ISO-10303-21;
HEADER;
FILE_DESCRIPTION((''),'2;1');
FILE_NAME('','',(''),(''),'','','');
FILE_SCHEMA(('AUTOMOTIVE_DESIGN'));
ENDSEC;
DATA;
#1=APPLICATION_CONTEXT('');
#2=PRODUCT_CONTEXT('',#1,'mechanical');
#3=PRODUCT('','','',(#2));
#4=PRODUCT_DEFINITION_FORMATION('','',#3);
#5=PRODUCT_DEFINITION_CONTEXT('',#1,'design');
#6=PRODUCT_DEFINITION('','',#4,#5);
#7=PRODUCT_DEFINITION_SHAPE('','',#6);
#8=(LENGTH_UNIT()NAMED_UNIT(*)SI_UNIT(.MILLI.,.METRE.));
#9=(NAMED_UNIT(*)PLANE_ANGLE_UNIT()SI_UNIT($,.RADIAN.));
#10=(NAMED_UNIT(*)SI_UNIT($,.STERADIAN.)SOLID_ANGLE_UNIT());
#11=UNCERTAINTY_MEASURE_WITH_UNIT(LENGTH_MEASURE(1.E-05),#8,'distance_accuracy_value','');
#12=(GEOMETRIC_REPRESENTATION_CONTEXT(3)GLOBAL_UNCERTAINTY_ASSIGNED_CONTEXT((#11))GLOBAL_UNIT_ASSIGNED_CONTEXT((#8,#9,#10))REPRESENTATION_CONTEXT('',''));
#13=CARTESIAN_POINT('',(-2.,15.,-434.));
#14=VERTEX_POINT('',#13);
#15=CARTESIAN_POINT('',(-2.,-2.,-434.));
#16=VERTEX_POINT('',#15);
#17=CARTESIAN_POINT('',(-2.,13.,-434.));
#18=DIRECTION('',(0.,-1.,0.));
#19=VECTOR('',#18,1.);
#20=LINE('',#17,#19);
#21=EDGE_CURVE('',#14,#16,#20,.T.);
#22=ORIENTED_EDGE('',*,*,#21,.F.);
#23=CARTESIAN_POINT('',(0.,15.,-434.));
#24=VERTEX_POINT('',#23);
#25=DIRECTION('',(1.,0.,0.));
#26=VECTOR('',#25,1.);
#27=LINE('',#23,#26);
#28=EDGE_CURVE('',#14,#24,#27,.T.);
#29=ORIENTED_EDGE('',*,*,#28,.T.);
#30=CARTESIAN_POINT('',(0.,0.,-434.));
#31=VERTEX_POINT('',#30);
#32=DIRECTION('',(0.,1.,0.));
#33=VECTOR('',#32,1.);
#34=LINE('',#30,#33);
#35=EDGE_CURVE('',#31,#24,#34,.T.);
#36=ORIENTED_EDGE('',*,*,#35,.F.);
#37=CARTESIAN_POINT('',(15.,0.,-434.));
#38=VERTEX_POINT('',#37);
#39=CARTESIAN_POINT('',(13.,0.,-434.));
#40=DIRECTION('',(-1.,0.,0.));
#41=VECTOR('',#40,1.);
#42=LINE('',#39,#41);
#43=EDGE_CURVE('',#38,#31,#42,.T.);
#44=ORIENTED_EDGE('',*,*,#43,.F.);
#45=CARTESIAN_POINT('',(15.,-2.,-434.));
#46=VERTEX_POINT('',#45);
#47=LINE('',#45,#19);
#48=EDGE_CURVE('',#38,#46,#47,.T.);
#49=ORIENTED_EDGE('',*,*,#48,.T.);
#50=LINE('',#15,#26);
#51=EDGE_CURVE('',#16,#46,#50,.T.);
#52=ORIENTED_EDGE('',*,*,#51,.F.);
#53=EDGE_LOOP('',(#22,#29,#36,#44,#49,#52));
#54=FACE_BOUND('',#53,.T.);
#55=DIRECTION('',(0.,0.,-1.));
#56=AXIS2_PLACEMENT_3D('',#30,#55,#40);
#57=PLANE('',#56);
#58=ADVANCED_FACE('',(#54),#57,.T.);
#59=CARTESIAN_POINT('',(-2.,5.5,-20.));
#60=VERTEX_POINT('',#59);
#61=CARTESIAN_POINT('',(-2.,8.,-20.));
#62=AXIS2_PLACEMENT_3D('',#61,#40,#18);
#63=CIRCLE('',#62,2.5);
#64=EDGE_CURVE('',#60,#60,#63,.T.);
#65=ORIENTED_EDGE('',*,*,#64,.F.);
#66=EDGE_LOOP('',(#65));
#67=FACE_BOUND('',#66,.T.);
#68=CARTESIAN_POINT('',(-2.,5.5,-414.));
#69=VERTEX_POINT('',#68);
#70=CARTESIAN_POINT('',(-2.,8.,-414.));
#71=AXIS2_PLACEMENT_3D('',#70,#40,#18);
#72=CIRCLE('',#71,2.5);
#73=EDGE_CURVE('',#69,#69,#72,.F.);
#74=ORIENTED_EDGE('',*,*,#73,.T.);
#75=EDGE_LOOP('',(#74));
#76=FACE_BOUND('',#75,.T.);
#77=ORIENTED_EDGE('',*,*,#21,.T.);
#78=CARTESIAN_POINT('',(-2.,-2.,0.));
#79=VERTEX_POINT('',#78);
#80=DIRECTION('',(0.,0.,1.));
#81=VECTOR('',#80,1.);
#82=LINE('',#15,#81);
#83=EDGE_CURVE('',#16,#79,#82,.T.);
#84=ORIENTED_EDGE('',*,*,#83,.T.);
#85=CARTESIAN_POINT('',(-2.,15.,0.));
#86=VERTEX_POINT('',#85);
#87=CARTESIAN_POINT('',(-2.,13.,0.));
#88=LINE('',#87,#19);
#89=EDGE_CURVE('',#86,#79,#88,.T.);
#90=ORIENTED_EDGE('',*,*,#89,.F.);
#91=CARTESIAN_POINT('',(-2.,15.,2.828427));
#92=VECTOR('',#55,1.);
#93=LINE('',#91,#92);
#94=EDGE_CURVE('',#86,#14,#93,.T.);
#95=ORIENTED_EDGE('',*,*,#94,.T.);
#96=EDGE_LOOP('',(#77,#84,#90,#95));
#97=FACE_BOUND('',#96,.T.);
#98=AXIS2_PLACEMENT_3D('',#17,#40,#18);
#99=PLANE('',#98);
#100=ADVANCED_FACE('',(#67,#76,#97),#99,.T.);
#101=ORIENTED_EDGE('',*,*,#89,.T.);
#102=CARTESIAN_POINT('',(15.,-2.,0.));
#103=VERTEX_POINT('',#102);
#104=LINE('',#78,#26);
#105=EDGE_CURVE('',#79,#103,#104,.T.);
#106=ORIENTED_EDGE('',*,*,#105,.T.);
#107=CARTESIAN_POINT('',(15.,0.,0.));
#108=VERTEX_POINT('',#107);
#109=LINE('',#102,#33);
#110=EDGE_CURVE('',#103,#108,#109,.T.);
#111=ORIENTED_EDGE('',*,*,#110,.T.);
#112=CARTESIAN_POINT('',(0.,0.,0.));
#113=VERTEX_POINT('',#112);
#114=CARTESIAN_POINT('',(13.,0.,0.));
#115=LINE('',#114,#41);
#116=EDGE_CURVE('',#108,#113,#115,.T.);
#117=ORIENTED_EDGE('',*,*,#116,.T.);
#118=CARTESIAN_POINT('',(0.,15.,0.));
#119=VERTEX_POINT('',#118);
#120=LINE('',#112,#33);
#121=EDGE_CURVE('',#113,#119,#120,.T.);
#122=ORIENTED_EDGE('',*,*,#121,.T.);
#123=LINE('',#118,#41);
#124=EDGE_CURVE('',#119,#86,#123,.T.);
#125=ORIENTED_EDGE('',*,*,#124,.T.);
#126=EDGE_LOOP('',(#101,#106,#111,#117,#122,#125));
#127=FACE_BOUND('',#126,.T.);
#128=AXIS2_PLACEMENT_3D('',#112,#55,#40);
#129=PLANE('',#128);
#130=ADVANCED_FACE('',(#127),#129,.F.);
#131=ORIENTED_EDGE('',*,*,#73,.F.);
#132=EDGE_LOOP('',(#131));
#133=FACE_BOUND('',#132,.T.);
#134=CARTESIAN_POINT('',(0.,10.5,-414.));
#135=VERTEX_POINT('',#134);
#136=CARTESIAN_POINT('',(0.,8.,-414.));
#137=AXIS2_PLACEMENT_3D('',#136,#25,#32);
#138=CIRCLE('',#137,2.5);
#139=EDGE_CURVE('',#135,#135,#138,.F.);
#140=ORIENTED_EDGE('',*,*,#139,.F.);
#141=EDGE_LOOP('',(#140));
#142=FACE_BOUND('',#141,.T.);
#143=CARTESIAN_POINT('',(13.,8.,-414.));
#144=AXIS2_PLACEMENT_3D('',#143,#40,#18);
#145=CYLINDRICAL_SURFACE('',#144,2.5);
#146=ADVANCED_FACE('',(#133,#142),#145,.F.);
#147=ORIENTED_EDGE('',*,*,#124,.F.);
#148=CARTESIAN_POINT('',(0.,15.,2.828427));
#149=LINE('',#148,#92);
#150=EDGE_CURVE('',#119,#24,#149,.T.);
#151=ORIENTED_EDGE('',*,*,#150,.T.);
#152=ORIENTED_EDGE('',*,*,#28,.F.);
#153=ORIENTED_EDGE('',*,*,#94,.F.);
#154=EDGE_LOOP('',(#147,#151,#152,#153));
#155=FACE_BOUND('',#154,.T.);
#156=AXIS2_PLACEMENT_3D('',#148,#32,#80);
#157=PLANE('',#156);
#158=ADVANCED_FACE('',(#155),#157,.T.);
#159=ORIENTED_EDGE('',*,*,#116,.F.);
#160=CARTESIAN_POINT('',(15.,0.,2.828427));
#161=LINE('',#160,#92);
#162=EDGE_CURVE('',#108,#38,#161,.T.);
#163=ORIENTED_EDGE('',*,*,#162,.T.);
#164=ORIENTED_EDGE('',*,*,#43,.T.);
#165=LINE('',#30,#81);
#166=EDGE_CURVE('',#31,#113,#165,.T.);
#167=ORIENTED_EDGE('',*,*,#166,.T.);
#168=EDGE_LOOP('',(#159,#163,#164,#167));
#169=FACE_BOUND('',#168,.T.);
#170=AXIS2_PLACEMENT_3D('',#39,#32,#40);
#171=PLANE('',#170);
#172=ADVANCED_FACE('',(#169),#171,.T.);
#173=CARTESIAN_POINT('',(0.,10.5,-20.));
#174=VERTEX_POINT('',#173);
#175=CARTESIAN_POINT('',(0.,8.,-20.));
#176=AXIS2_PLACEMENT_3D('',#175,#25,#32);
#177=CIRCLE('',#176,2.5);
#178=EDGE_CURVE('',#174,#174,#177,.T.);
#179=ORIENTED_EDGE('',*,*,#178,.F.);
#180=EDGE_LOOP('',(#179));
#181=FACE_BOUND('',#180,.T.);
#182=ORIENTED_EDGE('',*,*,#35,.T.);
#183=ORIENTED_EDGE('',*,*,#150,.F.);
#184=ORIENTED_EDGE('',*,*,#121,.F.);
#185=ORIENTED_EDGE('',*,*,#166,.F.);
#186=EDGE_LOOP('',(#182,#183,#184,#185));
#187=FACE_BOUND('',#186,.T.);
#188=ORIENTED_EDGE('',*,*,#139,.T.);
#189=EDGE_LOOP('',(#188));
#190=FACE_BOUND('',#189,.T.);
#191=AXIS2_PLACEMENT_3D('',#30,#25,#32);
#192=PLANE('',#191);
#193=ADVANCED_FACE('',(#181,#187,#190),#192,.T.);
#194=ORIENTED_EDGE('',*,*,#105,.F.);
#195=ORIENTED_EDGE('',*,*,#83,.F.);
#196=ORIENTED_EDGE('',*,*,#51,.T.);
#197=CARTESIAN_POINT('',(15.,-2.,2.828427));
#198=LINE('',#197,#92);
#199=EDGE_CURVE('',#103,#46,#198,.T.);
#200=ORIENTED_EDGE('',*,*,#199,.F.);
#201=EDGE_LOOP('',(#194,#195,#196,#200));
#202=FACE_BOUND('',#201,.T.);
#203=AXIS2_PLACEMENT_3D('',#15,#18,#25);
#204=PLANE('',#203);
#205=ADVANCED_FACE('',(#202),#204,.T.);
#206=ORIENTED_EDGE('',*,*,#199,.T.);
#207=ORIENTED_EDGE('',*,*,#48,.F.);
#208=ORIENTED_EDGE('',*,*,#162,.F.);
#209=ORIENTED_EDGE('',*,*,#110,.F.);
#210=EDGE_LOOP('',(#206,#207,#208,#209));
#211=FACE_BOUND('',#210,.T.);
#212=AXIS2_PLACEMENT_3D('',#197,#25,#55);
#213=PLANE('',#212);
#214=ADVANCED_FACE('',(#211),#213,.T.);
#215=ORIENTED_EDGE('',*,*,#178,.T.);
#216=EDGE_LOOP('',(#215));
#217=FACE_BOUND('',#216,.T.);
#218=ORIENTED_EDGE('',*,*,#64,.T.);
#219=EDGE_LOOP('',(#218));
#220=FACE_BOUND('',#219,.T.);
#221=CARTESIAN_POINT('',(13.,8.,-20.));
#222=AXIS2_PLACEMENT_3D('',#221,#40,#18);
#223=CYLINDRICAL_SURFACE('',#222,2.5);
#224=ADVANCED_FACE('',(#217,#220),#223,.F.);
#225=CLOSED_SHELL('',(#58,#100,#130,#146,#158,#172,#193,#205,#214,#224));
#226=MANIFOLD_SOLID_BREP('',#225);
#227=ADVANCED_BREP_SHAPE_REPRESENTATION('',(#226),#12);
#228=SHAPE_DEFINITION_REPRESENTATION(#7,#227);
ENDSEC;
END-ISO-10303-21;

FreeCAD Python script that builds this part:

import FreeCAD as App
import Part
import Sketcher
from FreeCAD import Vector
Q = App.Units.Quantity


def add_polygon(sketch, points):
    """Adds a closed chain of lines whose ends are joined by coincident constraints."""
    first, n = sketch.GeometryCount, len(points)
    for a, b in zip(points, points[1:] + points[:1]):
        sketch.addGeometry(Part.LineSegment(App.Vector(*a, 0), App.Vector(*b, 0)), False)
    for i in range(n):
        sketch.addConstraint(Sketcher.Constraint("Coincident", first + i, 2, first + (i + 1) % n, 1))

doc = App.newDocument("Part")
body = doc.addObject("PartDesign::Body", "Body")

# Sketch on XY plane
sketch1 = doc.addObject("Sketcher::SketchObject", "Sketch")
body.addObject(sketch1)
sketch1.AttachmentSupport = (doc.XY_Plane, [""])
sketch1.MapMode = "FlatFace"
add_polygon(sketch1, [(0, 0), (0, 13), (-2, 13), (-2, -2), (13, -2), (13, 0)])  # lines 0-5
sketch1.addConstraint(Sketcher.Constraint("Vertical", 0))
sketch1.addConstraint(Sketcher.Constraint("Horizontal", 1))
sketch1.addConstraint(Sketcher.Constraint("Vertical", 2))
sketch1.addConstraint(Sketcher.Constraint("Horizontal", 3))
sketch1.addConstraint(Sketcher.Constraint("Vertical", 4))
sketch1.addConstraint(Sketcher.Constraint("Horizontal", 5))
sketch1.addConstraint(Sketcher.Constraint("Coincident", 5, 2, -1, 1))
sketch1.addConstraint(Sketcher.Constraint("Equal", 5, 0))
sketch1.addConstraint(Sketcher.Constraint("Equal", 3, 2))
sketch1.addConstraint(Sketcher.Constraint("DistanceX", 1, 2, 1, 1, Q("2 mm")))
sketch1.addConstraint(Sketcher.Constraint("DistanceX", 3, 1, 3, 2, Q("15 mm")))
pad1 = doc.addObject("PartDesign::Pad", "Pad")
body.addObject(pad1)
pad1.Profile = sketch1
pad1.Length = 434
pad1.Reversed = True

# Sketch on YZ plane
sketch2 = doc.addObject("Sketcher::SketchObject", "Sketch001")
body.addObject(sketch2)
sketch2.AttachmentSupport = (doc.YZ_Plane, [""])
sketch2.MapMode = "FlatFace"
sketch2.AttachmentOffset = App.Placement(Vector(0, 0, -2), App.Rotation())
sketch2.addGeometry(Part.Circle(Vector(8, -20, 0), Vector(0, 0, 1), 2.5), False)
sketch2.addGeometry(Part.Circle(Vector(8, -414, 0), Vector(0, 0, 1), 2.5), False)
sketch2.addConstraint(Sketcher.Constraint("Equal", 0, 1))
sketch2.addConstraint(Sketcher.Constraint("Vertical", 0, 3, 1, 3))
sketch2.addConstraint(Sketcher.Constraint("Diameter", 0, Q("5 mm")))
sketch2.addConstraint(Sketcher.Constraint("DistanceX", -1, 1, 0, 3, Q("8 mm")))
sketch2.addConstraint(Sketcher.Constraint("DistanceY", 0, 3, -1, 1, Q("20 mm")))
sketch2.addConstraint(Sketcher.Constraint("DistanceY", 1, 3, -1, 1, Q("414 mm")))
pocket1 = doc.addObject("PartDesign::Pocket", "Pocket")
body.addObject(pocket1)
pocket1.Profile = sketch2
pocket1.Type = "ThroughAll"
pocket1.Reversed = True

# Sketch on XY plane
sketch3 = doc.addObject("Sketcher::SketchObject", "Sketch002")
body.addObject(sketch3)
sketch3.AttachmentSupport = (doc.XY_Plane, [""])
sketch3.MapMode = "FlatFace"
sketch3.AttachmentOffset = App.Placement(Vector(0, 0, -434), App.Rotation())
add_polygon(sketch3, [(0, 15), (0, 13), (-2, 13), (-2, 15)])  # lines 0-3
add_polygon(sketch3, [(15, 0), (15, -2), (13, -2), (13, 0)])  # lines 4-7
sketch3.addConstraint(Sketcher.Constraint("Vertical", 0))
sketch3.addConstraint(Sketcher.Constraint("Horizontal", 1))
sketch3.addConstraint(Sketcher.Constraint("Vertical", 2))
sketch3.addConstraint(Sketcher.Constraint("Horizontal", 3))
sketch3.addConstraint(Sketcher.Constraint("Vertical", 4))
sketch3.addConstraint(Sketcher.Constraint("Horizontal", 5))
sketch3.addConstraint(Sketcher.Constraint("Vertical", 6))
sketch3.addConstraint(Sketcher.Constraint("Horizontal", 7))
sketch3.addConstraint(Sketcher.Constraint("PointOnObject", 0, 2, -2))
sketch3.addConstraint(Sketcher.Constraint("PointOnObject", 6, 2, -1))
sketch3.addConstraint(Sketcher.Constraint("Equal", 3, 5))
sketch3.addConstraint(Sketcher.Constraint("Equal", 7, 0))
sketch3.addConstraint(Sketcher.Constraint("Equal", 2, 4))
sketch3.addConstraint(Sketcher.Constraint("DistanceX", 1, 2, 1, 1, Q("2 mm")))
sketch3.addConstraint(Sketcher.Constraint("DistanceY", -1, 1, 0, 2, Q("13 mm")))
sketch3.addConstraint(Sketcher.Constraint("DistanceX", -1, 1, 4, 2, Q("15 mm")))
pad2 = doc.addObject("PartDesign::Pad", "Pad001")
body.addObject(pad2)
pad2.Profile = sketch3
pad2.Length = 434

doc.recompute()
